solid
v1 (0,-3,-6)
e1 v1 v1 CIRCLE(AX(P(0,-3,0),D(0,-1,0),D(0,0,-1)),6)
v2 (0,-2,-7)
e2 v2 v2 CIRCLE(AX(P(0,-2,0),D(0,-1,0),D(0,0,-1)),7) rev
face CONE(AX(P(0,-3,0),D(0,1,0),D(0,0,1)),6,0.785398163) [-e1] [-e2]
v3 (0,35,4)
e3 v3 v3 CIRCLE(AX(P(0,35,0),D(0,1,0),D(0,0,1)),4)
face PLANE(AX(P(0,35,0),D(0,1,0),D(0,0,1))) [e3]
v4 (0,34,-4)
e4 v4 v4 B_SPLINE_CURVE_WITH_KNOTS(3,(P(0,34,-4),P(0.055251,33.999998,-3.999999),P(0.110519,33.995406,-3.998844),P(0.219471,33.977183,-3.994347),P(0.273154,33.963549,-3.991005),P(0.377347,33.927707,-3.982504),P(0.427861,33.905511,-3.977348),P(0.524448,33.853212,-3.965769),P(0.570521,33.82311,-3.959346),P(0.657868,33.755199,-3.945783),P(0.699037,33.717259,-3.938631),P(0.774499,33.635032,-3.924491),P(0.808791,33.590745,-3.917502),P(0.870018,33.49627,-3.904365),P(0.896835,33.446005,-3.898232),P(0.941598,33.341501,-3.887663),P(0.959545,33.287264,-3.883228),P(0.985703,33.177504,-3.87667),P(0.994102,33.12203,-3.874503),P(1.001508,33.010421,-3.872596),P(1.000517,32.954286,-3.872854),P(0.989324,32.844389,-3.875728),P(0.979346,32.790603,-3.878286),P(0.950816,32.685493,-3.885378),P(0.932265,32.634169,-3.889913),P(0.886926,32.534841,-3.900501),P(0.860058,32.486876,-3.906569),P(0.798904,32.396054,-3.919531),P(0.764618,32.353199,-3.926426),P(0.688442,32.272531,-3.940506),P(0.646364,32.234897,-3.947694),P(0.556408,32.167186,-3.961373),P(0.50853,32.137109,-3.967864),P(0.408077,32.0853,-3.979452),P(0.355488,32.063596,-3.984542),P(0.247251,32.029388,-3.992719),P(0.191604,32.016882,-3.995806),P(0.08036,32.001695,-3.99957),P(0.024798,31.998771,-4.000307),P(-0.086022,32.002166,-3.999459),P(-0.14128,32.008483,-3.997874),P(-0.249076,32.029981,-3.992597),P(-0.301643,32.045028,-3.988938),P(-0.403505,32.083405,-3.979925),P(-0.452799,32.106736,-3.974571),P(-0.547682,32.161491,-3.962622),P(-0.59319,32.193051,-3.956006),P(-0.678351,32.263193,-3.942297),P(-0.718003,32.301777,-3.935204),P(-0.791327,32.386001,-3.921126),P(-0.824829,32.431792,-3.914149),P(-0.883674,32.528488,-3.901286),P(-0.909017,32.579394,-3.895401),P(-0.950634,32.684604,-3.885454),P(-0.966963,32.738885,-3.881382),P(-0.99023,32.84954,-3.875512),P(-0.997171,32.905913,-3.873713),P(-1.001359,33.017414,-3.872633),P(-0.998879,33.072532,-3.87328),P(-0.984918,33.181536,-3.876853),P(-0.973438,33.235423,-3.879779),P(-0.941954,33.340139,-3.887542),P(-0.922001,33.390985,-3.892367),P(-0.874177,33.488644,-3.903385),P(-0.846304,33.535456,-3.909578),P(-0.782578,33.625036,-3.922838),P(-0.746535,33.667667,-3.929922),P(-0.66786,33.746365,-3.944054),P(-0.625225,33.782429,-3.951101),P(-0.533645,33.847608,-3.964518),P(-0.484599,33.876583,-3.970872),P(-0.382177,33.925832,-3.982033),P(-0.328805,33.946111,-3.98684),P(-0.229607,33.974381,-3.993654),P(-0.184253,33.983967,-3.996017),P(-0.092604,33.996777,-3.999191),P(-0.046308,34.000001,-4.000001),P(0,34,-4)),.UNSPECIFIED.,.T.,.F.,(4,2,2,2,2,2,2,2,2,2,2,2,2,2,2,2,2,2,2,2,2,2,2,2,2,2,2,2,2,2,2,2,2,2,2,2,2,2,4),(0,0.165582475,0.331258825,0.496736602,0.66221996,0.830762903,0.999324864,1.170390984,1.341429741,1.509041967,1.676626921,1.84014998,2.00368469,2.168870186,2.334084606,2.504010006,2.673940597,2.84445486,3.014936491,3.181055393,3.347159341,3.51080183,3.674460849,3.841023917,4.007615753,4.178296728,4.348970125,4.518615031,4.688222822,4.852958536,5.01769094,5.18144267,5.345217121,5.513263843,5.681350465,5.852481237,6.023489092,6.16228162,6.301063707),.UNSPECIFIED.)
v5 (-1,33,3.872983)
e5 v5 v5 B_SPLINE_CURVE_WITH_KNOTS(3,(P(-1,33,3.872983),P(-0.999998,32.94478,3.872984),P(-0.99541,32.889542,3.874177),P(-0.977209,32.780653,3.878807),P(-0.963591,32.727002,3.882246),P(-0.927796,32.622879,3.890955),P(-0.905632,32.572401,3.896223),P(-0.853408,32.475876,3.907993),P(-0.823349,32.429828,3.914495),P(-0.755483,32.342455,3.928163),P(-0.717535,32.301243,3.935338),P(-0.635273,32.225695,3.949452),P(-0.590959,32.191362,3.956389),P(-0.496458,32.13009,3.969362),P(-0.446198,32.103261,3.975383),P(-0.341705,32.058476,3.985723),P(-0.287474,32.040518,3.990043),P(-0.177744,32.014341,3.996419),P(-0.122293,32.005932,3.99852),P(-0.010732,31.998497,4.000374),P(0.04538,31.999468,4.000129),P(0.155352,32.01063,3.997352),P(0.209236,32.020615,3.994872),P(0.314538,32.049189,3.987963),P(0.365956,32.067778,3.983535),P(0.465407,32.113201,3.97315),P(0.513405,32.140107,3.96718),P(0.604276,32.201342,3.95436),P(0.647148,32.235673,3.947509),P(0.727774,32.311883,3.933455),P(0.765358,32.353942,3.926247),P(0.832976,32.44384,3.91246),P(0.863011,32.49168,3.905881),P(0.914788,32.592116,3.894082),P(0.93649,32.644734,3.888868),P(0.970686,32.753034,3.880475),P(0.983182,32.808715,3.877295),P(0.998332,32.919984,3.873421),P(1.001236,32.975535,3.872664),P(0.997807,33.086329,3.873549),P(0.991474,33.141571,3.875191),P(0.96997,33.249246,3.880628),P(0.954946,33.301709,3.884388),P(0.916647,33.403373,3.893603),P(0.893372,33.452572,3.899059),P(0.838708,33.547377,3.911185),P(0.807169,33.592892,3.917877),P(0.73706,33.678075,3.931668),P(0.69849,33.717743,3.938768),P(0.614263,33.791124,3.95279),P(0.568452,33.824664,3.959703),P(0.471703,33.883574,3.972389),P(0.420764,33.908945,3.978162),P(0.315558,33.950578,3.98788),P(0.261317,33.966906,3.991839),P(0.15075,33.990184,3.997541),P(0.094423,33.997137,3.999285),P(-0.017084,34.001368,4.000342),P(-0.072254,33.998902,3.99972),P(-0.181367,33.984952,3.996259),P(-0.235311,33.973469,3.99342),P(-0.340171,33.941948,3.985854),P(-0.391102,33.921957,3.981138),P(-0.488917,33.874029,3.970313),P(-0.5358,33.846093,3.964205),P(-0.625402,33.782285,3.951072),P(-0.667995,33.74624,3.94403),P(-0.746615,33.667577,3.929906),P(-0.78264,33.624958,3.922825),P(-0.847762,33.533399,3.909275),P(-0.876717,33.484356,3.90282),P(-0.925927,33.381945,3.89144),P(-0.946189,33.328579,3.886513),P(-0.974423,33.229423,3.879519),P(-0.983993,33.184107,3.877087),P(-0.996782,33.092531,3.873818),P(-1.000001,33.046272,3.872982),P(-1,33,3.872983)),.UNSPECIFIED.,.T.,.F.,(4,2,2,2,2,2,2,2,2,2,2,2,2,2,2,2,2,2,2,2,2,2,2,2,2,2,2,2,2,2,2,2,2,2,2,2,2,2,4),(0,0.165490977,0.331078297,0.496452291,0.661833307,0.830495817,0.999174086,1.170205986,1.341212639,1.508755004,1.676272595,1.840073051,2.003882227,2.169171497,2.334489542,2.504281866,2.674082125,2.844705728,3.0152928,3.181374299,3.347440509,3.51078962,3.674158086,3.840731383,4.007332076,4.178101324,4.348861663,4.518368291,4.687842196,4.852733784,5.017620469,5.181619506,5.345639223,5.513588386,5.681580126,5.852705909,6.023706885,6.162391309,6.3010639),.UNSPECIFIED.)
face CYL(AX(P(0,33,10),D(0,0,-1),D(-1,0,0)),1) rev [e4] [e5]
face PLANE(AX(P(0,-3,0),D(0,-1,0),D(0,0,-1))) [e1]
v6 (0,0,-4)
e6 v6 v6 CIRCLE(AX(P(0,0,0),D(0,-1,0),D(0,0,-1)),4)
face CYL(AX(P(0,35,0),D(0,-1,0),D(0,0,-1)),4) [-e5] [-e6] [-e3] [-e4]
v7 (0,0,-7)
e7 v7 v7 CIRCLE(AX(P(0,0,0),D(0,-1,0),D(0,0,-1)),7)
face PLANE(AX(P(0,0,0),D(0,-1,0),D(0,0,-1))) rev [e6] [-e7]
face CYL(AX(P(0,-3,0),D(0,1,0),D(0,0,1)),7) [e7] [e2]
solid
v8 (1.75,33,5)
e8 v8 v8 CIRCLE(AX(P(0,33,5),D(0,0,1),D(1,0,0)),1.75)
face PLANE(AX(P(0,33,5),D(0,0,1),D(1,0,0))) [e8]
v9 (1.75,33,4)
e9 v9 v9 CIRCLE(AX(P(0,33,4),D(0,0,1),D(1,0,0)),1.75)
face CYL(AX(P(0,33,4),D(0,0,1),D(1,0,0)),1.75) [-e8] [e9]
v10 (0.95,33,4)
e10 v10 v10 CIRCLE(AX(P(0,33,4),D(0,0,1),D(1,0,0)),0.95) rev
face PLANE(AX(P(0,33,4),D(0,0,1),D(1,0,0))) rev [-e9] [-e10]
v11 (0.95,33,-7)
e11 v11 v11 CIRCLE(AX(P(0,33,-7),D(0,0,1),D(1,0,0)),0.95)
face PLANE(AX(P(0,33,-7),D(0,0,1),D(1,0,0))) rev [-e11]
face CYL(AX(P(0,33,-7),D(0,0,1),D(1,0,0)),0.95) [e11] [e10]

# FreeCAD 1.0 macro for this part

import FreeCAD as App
import Part
import Sketcher


def edges_at(feature, points):
    """Names of the edges that pass closest to the given points."""
    edges = feature.Shape.Edges
    near = lambda p: min(range(len(edges)), key=lambda i: edges[i].distToShape(Part.Vertex(*p))[0])
    return sorted({f"Edge{near(p) + 1}" for p in points})

doc = App.newDocument("Part")
body = doc.addObject("PartDesign::Body", "Body")

# Sketch on XZ plane
sketch1 = body.newObject("Sketcher::SketchObject", "Sketch")
sketch1.AttachmentSupport = (doc.getObject("XZ_Plane"), [""])
sketch1.MapMode = "FlatFace"
sketch1.addGeometry(Part.Circle(App.Vector(0, 0, 0), App.Vector(0, 0, 1), 4), False)
sketch1.addConstraint([
    Sketcher.Constraint("Coincident", 0, 3, -1, 1),
    Sketcher.Constraint("Diameter", 0, 8.0),
])
pad1 = body.newObject("PartDesign::Pad", "Pad")
pad1.Profile = sketch1
pad1.Length = 35
pad1.Reversed = True

# Sketch on XZ plane
sketch2 = body.newObject("Sketcher::SketchObject", "Sketch001")
sketch2.AttachmentSupport = (doc.getObject("XZ_Plane"), [""])
sketch2.MapMode = "FlatFace"
sketch2.addGeometry(Part.Circle(App.Vector(0, 0, 0), App.Vector(0, 0, 1), 7), False)
sketch2.addConstraint([
    Sketcher.Constraint("Coincident", 0, 3, -1, 1),
    Sketcher.Constraint("Diameter", 0, 14.0),
])
pad2 = body.newObject("PartDesign::Pad", "Pad001")
pad2.Profile = sketch2
pad2.Length = 3
doc.recompute()

chamfer = body.newObject("PartDesign::Chamfer", "Chamfer")
chamfer.Base = (pad2, edges_at(pad2, [(-7, -3, 0)]))
chamfer.Size = 1

# Sketch on XY plane
sketch3 = body.newObject("Sketcher::SketchObject", "Sketch002")
sketch3.AttachmentSupport = (doc.getObject("XY_Plane"), [""])
sketch3.MapMode = "FlatFace"
sketch3.addGeometry(Part.Circle(App.Vector(0, 33, 0), App.Vector(0, 0, 1), 1), False)
sketch3.addConstraint([
    Sketcher.Constraint("PointOnObject", 0, 3, -2),
    Sketcher.Constraint("Diameter", 0, 2.0),
    Sketcher.Constraint("DistanceY", -1, 1, 0, 3, 33.0),
])
pocket1 = body.newObject("PartDesign::Pocket", "Pocket")
pocket1.Profile = sketch3
pocket1.Type = "ThroughAll"
pocket1.Midplane = True
body2 = doc.addObject("PartDesign::Body", "Body001")

# Sketch on XY plane
sketch4 = body2.newObject("Sketcher::SketchObject", "Sketch003")
sketch4.AttachmentSupport = (doc.getObject("XY_Plane001"), [""])
sketch4.MapMode = "FlatFace"
sketch4.addGeometry(Part.Circle(App.Vector(0, 33, 0), App.Vector(0, 0, 1), 0.95), False)
sketch4.addConstraint([
    Sketcher.Constraint("PointOnObject", 0, 3, -2),
    Sketcher.Constraint("Diameter", 0, 1.9),
    Sketcher.Constraint("DistanceY", -1, 1, 0, 3, 33.0),
])
pad3 = body2.newObject("PartDesign::Pad", "Pad002")
pad3.Profile = sketch4
pad3.Type = "TwoLengths"
pad3.Length = 5
pad3.Length2 = 7

# Sketch on XY plane
sketch5 = body2.newObject("Sketcher::SketchObject", "Sketch004")
sketch5.AttachmentSupport = (doc.getObject("XY_Plane001"), [""])
sketch5.MapMode = "FlatFace"
sketch5.AttachmentOffset = App.Placement(App.Vector(0, 0, 5), App.Rotation())
sketch5.addGeometry(Part.Circle(App.Vector(0, 33, 0), App.Vector(0, 0, 1), 1.75), False)
sketch5.addConstraint([
    Sketcher.Constraint("PointOnObject", 0, 3, -2),
    Sketcher.Constraint("Diameter", 0, 3.5),
    Sketcher.Constraint("DistanceY", -1, 1, 0, 3, 33.0),
])
pad4 = body2.newObject("PartDesign::Pad", "Pad003")
pad4.Profile = sketch5
pad4.Length = 1
pad4.Reversed = True

doc.recompute()
